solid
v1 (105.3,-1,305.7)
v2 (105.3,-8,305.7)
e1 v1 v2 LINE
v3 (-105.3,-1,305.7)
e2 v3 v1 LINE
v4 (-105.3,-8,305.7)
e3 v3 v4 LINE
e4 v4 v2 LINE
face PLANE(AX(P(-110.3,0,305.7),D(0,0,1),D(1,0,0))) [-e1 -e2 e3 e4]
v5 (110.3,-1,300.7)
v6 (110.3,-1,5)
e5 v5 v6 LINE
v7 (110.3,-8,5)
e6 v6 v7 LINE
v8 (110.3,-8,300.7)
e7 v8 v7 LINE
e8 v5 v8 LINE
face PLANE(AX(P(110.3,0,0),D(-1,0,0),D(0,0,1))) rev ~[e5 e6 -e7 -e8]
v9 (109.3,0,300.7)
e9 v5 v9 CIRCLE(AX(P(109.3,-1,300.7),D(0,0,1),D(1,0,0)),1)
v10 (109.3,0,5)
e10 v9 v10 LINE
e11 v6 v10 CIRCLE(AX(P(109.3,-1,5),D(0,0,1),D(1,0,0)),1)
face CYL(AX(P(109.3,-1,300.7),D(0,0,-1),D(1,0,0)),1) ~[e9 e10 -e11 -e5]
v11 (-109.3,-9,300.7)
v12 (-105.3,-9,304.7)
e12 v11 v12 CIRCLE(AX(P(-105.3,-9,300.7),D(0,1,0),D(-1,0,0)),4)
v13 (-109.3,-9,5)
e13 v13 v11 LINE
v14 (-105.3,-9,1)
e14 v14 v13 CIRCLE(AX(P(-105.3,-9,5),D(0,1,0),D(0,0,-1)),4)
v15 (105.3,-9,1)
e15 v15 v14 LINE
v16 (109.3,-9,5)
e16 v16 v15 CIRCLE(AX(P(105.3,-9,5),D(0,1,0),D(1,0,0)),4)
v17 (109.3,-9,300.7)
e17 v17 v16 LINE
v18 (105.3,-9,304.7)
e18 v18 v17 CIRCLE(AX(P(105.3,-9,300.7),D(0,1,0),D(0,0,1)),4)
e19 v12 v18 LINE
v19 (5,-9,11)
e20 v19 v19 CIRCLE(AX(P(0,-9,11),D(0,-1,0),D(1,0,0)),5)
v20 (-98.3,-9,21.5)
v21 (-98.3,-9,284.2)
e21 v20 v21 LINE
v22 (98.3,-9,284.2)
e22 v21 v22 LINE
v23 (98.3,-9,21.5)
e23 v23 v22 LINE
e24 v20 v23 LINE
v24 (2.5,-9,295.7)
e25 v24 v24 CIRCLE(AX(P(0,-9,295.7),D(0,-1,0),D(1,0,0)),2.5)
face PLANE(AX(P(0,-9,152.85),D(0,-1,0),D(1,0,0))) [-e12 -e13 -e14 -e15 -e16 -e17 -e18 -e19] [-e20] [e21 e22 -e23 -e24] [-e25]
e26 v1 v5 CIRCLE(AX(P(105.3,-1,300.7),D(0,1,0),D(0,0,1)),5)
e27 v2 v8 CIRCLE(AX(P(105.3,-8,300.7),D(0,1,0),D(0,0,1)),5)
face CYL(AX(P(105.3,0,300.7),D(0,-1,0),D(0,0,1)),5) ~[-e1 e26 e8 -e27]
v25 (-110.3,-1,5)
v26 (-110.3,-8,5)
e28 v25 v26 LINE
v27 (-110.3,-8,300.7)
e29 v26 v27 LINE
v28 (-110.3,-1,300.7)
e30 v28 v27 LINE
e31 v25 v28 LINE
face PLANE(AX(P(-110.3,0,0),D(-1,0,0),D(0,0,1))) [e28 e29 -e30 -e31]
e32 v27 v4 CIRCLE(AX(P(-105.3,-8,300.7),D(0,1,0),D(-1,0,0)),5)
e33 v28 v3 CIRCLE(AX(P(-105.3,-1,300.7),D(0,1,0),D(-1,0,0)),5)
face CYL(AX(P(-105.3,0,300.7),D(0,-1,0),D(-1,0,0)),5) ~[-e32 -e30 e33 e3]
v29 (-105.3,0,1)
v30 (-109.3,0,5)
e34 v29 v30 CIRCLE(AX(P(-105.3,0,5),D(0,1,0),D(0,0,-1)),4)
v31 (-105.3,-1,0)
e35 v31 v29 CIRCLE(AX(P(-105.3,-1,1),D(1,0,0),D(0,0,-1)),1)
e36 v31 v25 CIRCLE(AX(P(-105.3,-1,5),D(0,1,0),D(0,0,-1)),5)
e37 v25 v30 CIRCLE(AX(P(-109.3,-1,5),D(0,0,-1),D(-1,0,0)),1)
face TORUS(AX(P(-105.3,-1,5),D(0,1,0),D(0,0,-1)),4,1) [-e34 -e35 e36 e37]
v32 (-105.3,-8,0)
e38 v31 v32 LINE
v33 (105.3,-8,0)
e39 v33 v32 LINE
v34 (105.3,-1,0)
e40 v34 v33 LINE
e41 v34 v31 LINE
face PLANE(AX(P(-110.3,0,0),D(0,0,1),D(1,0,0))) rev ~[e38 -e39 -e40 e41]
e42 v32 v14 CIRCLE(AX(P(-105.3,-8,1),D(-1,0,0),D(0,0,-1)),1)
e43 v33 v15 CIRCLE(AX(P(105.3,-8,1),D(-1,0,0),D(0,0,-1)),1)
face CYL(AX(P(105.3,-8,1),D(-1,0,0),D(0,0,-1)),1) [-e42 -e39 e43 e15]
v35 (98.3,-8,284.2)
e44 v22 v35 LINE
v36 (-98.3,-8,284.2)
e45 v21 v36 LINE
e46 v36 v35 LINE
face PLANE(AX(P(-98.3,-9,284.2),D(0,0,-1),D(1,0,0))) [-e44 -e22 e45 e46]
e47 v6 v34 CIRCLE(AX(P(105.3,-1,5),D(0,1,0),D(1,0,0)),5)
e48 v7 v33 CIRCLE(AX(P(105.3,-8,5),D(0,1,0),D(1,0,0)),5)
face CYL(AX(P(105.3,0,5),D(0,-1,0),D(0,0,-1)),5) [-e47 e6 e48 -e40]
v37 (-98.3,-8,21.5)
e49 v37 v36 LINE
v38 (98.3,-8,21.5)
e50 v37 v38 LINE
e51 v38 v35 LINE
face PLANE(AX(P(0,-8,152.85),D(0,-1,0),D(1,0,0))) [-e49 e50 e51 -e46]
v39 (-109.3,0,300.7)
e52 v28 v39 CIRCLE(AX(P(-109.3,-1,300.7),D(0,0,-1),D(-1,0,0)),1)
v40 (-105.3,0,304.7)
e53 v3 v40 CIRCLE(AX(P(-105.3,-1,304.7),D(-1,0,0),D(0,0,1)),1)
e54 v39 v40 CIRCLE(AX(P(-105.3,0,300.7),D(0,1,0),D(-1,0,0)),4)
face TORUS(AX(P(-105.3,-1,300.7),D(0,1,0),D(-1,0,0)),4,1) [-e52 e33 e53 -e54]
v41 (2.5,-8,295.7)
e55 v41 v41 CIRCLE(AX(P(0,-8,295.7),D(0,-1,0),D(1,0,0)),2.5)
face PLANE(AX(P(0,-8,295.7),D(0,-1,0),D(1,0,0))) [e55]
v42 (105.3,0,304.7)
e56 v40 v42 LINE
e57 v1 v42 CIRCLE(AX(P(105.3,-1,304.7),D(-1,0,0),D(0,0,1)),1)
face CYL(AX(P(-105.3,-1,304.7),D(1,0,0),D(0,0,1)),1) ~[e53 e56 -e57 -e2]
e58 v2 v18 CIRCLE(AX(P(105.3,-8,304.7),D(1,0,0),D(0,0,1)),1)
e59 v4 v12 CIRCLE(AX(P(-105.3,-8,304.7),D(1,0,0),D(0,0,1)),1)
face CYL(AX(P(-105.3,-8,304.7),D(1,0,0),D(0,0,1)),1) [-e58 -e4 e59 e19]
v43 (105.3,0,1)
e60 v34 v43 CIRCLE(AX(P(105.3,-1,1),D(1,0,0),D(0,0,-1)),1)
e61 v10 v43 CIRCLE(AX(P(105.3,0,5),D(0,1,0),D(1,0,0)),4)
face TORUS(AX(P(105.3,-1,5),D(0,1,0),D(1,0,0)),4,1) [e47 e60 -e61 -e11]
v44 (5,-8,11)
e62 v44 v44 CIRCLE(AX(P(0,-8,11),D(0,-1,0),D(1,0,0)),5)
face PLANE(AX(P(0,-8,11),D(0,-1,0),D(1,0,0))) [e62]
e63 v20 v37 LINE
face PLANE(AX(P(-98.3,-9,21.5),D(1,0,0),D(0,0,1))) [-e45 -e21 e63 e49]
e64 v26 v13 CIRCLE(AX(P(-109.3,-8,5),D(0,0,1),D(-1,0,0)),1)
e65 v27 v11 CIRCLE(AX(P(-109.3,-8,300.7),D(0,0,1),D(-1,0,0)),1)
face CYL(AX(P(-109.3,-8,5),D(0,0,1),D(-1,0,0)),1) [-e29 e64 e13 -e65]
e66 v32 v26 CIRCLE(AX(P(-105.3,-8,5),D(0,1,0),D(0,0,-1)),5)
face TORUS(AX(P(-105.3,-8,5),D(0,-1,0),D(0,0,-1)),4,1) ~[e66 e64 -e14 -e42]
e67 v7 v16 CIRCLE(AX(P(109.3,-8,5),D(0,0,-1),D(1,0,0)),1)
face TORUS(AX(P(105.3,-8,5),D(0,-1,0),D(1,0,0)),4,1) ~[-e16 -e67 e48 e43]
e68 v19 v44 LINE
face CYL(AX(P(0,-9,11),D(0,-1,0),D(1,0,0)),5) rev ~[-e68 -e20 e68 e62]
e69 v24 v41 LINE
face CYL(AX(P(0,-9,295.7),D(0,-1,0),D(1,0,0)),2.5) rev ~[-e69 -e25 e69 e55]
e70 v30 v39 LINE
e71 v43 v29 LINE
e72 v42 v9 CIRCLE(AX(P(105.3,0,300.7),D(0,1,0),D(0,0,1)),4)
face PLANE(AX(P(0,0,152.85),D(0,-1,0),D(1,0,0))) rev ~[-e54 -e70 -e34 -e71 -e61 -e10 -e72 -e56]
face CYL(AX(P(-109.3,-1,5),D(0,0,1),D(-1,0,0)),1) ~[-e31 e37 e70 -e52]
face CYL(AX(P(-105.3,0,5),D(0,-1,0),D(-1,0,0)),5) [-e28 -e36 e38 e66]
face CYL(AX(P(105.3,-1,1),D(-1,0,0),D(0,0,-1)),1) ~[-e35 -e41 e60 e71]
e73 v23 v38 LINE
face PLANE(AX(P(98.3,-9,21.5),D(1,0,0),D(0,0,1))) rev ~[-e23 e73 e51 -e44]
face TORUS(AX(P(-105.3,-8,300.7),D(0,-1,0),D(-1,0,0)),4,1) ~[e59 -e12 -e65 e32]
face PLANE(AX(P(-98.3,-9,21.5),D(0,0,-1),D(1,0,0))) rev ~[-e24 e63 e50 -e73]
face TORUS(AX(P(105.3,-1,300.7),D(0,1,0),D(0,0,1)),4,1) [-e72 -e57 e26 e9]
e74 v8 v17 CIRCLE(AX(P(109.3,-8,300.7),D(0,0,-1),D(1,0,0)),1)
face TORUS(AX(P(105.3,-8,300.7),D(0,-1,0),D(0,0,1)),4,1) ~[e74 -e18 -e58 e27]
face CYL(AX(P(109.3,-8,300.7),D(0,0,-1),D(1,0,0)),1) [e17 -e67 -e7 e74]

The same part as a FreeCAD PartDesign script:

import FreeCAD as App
import Part
import Sketcher


def edges_at(feature, points):
    """Names of the edges that pass closest to the given points."""
    edges = feature.Shape.Edges
    near = lambda p: min(range(len(edges)), key=lambda i: edges[i].distToShape(Part.Vertex(*p))[0])
    return sorted({f"Edge{near(p) + 1}" for p in points})


def add_polygon(sketch, points):
    """Adds a closed chain of lines whose ends are joined by coincident constraints."""
    first, n = sketch.GeometryCount, len(points)
    for a, b in zip(points, points[1:] + points[:1]):
        sketch.addGeometry(Part.LineSegment(App.Vector(*a, 0), App.Vector(*b, 0)), False)
    for i in range(n):
        sketch.addConstraint(Sketcher.Constraint("Coincident", first + i, 2, first + (i + 1) % n, 1))

doc = App.newDocument("Part")
body = doc.addObject("PartDesign::Body", "Body")

# Sketch on XZ plane
sketch1 = body.newObject("Sketcher::SketchObject", "Sketch")
sketch1.AttachmentSupport = (doc.getObject("XZ_Plane"), [""])
sketch1.MapMode = "FlatFace"
add_polygon(sketch1, [(-110, 306), (-110, 0), (110, 0), (110, 306)])  # lines 0-3
sketch1.addConstraint([
    Sketcher.Constraint("Vertical", 0),
    Sketcher.Constraint("Horizontal", 1),
    Sketcher.Constraint("Vertical", 2),
    Sketcher.Constraint("Horizontal", 3),
    Sketcher.Constraint("Symmetric", 0, 2, 1, 2, -1, 1),
    Sketcher.Constraint("DistanceX", 1, 1, 1, 2, 220.6),
    Sketcher.Constraint("DistanceY", 0, 2, 0, 1, 305.7),
])
pad1 = body.newObject("PartDesign::Pad", "Pad")
pad1.Profile = sketch1
pad1.Length = 9

# Sketch on XZ plane
sketch2 = body.newObject("Sketcher::SketchObject", "Sketch001")
sketch2.AttachmentSupport = (doc.getObject("XZ_Plane"), [""])
sketch2.MapMode = "FlatFace"
sketch2.AttachmentOffset = App.Placement(App.Vector(0, 0, 9), App.Rotation())
add_polygon(sketch2, [(-98, 284), (-98, 22), (98, 22), (98, 284)])  # lines 0-3
sketch2.addConstraint([
    Sketcher.Constraint("Vertical", 0),
    Sketcher.Constraint("Horizontal", 1),
    Sketcher.Constraint("Vertical", 2),
    Sketcher.Constraint("Horizontal", 3),
    Sketcher.Constraint("DistanceX", 1, 1, 1, 2, 196.6),
    Sketcher.Constraint("DistanceY", 0, 2, 0, 1, 262.7),
    Sketcher.Constraint("DistanceX", 0, 2, -1, 1, 98.3),
    Sketcher.Constraint("DistanceY", -1, 1, 0, 2, 21.5),
])
pocket1 = body.newObject("PartDesign::Pocket", "Pocket")
pocket1.Profile = sketch2
pocket1.Length = 1

# Sketch on XZ plane
sketch3 = body.newObject("Sketcher::SketchObject", "Sketch002")
sketch3.AttachmentSupport = (doc.getObject("XZ_Plane"), [""])
sketch3.MapMode = "FlatFace"
sketch3.AttachmentOffset = App.Placement(App.Vector(0, 0, 9), App.Rotation())
sketch3.addGeometry([
    Part.Circle(App.Vector(0, 295.7, 0), App.Vector(0, 0, 1), 2.5),
    Part.Circle(App.Vector(0, 11, 0), App.Vector(0, 0, 1), 5),
], False)
sketch3.addConstraint([
    Sketcher.Constraint("PointOnObject", 0, 3, -2),
    Sketcher.Constraint("PointOnObject", 1, 3, -2),
    Sketcher.Constraint("Diameter", 0, 5.0),
    Sketcher.Constraint("Diameter", 1, 10.0),
    Sketcher.Constraint("DistanceY", -1, 1, 1, 3, 11.0),
    Sketcher.Constraint("DistanceY", -1, 1, 0, 3, 295.7),
])
pocket2 = body.newObject("PartDesign::Pocket", "Pocket001")
pocket2.Profile = sketch3
pocket2.Length = 1
doc.recompute()

fillet = body.newObject("PartDesign::Fillet", "Fillet")
fillet.Base = (pocket2, edges_at(pocket2, [
    (-110.3, -4.5, 0),
    (110.3, -4.5, 0),
    (110.3, -4.5, 305.7),
    (-110.3, -4.5, 305.7),
]))
fillet.Radius = 5
doc.recompute()

fillet2 = body.newObject("PartDesign::Fillet", "Fillet001")
fillet2.Base = (fillet, edges_at(fillet, [(-110.3, -9, 152.85), (-110.3, 0, 152.85)]))
fillet2.Radius = 1

doc.recompute()
